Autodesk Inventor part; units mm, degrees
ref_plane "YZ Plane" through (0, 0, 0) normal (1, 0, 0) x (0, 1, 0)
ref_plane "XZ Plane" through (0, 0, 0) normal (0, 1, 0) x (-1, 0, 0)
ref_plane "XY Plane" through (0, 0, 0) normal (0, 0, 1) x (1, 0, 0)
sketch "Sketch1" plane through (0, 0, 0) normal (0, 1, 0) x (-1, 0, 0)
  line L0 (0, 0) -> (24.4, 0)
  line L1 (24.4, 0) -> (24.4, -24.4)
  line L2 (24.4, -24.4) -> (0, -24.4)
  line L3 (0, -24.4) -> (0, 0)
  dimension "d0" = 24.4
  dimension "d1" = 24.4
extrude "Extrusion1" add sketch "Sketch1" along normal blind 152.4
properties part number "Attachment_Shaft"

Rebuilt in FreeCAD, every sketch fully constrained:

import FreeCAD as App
import Part
import Sketcher
from FreeCAD import Vector
Q = App.Units.Quantity


def add_polygon(sketch, points):
    """Adds a closed chain of lines whose ends are joined by coincident constraints."""
    first, n = sketch.GeometryCount, len(points)
    for a, b in zip(points, points[1:] + points[:1]):
        sketch.addGeometry(Part.LineSegment(App.Vector(*a, 0), App.Vector(*b, 0)), False)
    for i in range(n):
        sketch.addConstraint(Sketcher.Constraint("Coincident", first + i, 2, first + (i + 1) % n, 1))

doc = App.newDocument("Part")
body = doc.addObject("PartDesign::Body", "Body")

# Sketch on XZ plane
sketch1 = doc.addObject("Sketcher::SketchObject", "Sketch")
body.addObject(sketch1)
sketch1.AttachmentSupport = (doc.XZ_Plane, [""])
sketch1.MapMode = "FlatFace"
add_polygon(sketch1, [(-24, 0), (0, 0), (0, -24), (-24, -24)])  # lines 0-3
sketch1.addConstraint([
    Sketcher.Constraint("Horizontal", 0),
    Sketcher.Constraint("Vertical", 1),
    Sketcher.Constraint("Horizontal", 2),
    Sketcher.Constraint("Vertical", 3),
    Sketcher.Constraint("Coincident", 0, 2, -1, 1),
    Sketcher.Constraint("Equal", 2, 1),
    Sketcher.Constraint("DistanceX", 0, 1, 0, 2, Q("24.4 mm")),
])
pad1 = doc.addObject("PartDesign::Pad", "Pad")
body.addObject(pad1)
pad1.Profile = sketch1
pad1.Length = 152.4
pad1.Reversed = True

doc.recompute()
